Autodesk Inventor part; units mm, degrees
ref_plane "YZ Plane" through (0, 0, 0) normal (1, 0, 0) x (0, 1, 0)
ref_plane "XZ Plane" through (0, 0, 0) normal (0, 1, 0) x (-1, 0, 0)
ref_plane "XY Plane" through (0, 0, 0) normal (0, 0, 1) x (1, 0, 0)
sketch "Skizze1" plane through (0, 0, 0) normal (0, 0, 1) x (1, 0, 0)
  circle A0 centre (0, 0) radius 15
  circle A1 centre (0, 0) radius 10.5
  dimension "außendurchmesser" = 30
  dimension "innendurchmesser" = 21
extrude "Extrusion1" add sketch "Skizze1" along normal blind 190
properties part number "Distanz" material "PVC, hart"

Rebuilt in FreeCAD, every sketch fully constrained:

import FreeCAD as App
import Part
import Sketcher

V = App.Vector

doc = App.newDocument("Part")
params = doc.addObject("Spreadsheet::Sheet", "Params")
for row, (alias, value) in enumerate([
    ("sketch1_diameter", "30 mm"),
    ("sketch1_diameter2", "21 mm"),
    ("pad1_length", "190 mm"),
], start=1):
    params.set(f"A{row}", alias)
    params.set(f"B{row}", "=" + value)
    params.setAlias(f"B{row}", alias)

body = doc.addObject("PartDesign::Body", "Body")

# Sketch on XY plane
sketch1 = body.newObject("Sketcher::SketchObject", "Sketch")
sketch1.AttachmentSupport = (doc.getObject("XY_Plane"), [""])
sketch1.MapMode = "FlatFace"
sketch1.addGeometry([
    Part.Circle(V(0, 0, 0), V(0, 0, 1), 15),
    Part.Circle(V(0, 0, 0), V(0, 0, 1), 10),
], False)
sketch1.addConstraint([
    Sketcher.Constraint("Coincident", 0, 3, -1, 1),
    Sketcher.Constraint("Coincident", 1, 3, -1, 1),
    Sketcher.Constraint("Diameter", 0, 30.0),
    Sketcher.Constraint("Diameter", 1, 21.0),
])
sketch1.setExpression("Constraints[2]", "Params.sketch1_diameter")
sketch1.setExpression("Constraints[3]", "Params.sketch1_diameter2")
pad1 = body.newObject("PartDesign::Pad", "Pad")
pad1.Profile = sketch1
pad1.setExpression("Length", "Params.pad1_length")

doc.recompute()
